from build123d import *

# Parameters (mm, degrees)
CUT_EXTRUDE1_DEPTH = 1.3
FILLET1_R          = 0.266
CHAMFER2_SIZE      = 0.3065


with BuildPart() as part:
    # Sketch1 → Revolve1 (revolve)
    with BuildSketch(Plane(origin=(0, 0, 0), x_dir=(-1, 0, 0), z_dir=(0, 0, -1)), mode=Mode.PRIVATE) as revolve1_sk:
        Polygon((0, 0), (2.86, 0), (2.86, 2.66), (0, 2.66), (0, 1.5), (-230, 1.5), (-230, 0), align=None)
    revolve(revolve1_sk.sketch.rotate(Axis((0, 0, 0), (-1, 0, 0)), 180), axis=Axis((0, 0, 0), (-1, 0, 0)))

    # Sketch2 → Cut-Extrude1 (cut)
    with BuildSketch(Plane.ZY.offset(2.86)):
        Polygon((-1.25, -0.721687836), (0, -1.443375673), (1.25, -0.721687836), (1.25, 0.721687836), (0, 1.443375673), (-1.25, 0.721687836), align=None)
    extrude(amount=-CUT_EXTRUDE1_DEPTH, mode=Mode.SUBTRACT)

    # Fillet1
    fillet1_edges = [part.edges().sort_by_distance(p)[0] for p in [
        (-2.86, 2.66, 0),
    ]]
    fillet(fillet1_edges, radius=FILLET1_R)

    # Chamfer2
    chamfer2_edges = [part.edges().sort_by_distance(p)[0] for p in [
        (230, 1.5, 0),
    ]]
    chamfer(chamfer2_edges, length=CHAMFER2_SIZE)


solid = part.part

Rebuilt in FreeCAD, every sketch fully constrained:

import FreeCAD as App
import Part
import Sketcher
from FreeCAD import Vector
Q = App.Units.Quantity


def edges_at(feature, points):
    """Names of the edges that pass closest to the given points."""
    edges = feature.Shape.Edges
    near = lambda p: min(range(len(edges)), key=lambda i: edges[i].distToShape(Part.Vertex(*p))[0])
    return sorted({f"Edge{near(p) + 1}" for p in points})

doc = App.newDocument("Part")
body = doc.addObject("PartDesign::Body", "Body")

sketch1 = body.newObject("Sketcher::SketchObject", "Sketch")
sketch1.AttachmentSupport = (doc.getObject("XY_Plane"), [""])
sketch1.MapMode = "FlatFace"
sketch1.addGeometry([
    Part.LineSegment(Vector(-2.86, 0, 0), Vector(-2.86, 2.66, 0)),
    Part.LineSegment(Vector(-2.86, 2.66, 0), Vector(0, 2.66, 0)),
    Part.LineSegment(Vector(0, 2.66, 0), Vector(0, 1.5, 0)),
    Part.LineSegment(Vector(0, 1.5, 0), Vector(230, 1.5, 0)),
    Part.LineSegment(Vector(230, 1.5, 0), Vector(230, 0, 0)),
    Part.LineSegment(Vector(230, 0, 0), Vector(-2.86, 0, 0)),
], False)
sketch1.addConstraint([
    Sketcher.Constraint("Coincident", 0, 2, 1, 1),
    Sketcher.Constraint("Coincident", 1, 2, 2, 1),
    Sketcher.Constraint("Coincident", 2, 2, 3, 1),
    Sketcher.Constraint("Coincident", 3, 2, 4, 1),
    Sketcher.Constraint("Coincident", 4, 2, 5, 1),
    Sketcher.Constraint("Coincident", 5, 2, 0, 1),
    Sketcher.Constraint("Vertical", 0),
    Sketcher.Constraint("Horizontal", 1),
    Sketcher.Constraint("Vertical", 2),
    Sketcher.Constraint("Horizontal", 3),
    Sketcher.Constraint("Vertical", 4),
    Sketcher.Constraint("Horizontal", 5),
    Sketcher.Constraint("PointOnObject", 1, 2, -2),
    Sketcher.Constraint("PointOnObject", 4, 2, -1),
    Sketcher.Constraint("DistanceX", 3, 1, 3, 2, Q("230 mm")),
    Sketcher.Constraint("DistanceY", 4, 2, 4, 1, Q("1.5 mm")),
    Sketcher.Constraint("DistanceX", 1, 1, 1, 2, Q("2.86 mm")),
    Sketcher.Constraint("DistanceY", 0, 1, 0, 2, Q("2.66 mm")),
])
revolution = body.newObject("PartDesign::Revolution", "Revolution")
revolution.Profile = sketch1
revolution.ReferenceAxis = (sketch1, ["H_Axis"])
revolution.Angle = 360

sketch2 = body.newObject("Sketcher::SketchObject", "Sketch001")
sketch2.AttachmentSupport = (doc.getObject("YZ_Plane"), [""])
sketch2.MapMode = "FlatFace"
sketch2.AttachmentOffset = App.Placement(Vector(0, 0, -2.86), App.Rotation())
sketch2.addGeometry([
    Part.LineSegment(Vector(-0.721688, -1.25, 0), Vector(-1.443376, 0, 0)),
    Part.LineSegment(Vector(-1.443376, 0, 0), Vector(-0.721688, 1.25, 0)),
    Part.LineSegment(Vector(-0.721688, 1.25, 0), Vector(0.721688, 1.25, 0)),
    Part.LineSegment(Vector(0.721688, 1.25, 0), Vector(1.443376, 0, 0)),
    Part.LineSegment(Vector(1.443376, 0, 0), Vector(0.721688, -1.25, 0)),
    Part.LineSegment(Vector(0.721688, -1.25, 0), Vector(-0.721688, -1.25, 0)),
], False)
sketch2.addConstraint([
    Sketcher.Constraint("Coincident", 0, 2, 1, 1),
    Sketcher.Constraint("Coincident", 1, 2, 2, 1),
    Sketcher.Constraint("Coincident", 2, 2, 3, 1),
    Sketcher.Constraint("Coincident", 3, 2, 4, 1),
    Sketcher.Constraint("Coincident", 4, 2, 5, 1),
    Sketcher.Constraint("Coincident", 5, 2, 0, 1),
    Sketcher.Constraint("Horizontal", 2),
    Sketcher.Constraint("Horizontal", 5),
    Sketcher.Constraint("Symmetric", 0, 2, 3, 2, -1, 1),
    Sketcher.Constraint("Symmetric", 1, 2, 4, 2, -1, 1),
    Sketcher.Constraint("PointOnObject", 0, 2, -1),
    Sketcher.Constraint("Parallel", 0, 3),
    Sketcher.Constraint("Vertical", 2, 2, 4, 2),
    Sketcher.Constraint("Angle", 0, Q("120 deg")),
    Sketcher.Constraint("DistanceY", 4, 2, 2, 2, Q("2.5 mm")),
    Sketcher.Constraint("DistanceX", 2, 1, 2, 2, Q("1.443376 mm")),
])
pocket1 = body.newObject("PartDesign::Pocket", "Pocket")
pocket1.Profile = sketch2
pocket1.Length = 1.3
pocket1.Reversed = True
doc.recompute()

fillet = body.newObject("PartDesign::Fillet", "Fillet")
fillet.Base = (pocket1, edges_at(pocket1, [(-2.86, 2.66, 0)]))
fillet.Radius = 0.266
doc.recompute()

chamfer = body.newObject("PartDesign::Chamfer", "Chamfer")
chamfer.Base = (fillet, edges_at(fillet, [(230, 1.5, 0)]))
chamfer.Size = 0.3065

doc.recompute()
